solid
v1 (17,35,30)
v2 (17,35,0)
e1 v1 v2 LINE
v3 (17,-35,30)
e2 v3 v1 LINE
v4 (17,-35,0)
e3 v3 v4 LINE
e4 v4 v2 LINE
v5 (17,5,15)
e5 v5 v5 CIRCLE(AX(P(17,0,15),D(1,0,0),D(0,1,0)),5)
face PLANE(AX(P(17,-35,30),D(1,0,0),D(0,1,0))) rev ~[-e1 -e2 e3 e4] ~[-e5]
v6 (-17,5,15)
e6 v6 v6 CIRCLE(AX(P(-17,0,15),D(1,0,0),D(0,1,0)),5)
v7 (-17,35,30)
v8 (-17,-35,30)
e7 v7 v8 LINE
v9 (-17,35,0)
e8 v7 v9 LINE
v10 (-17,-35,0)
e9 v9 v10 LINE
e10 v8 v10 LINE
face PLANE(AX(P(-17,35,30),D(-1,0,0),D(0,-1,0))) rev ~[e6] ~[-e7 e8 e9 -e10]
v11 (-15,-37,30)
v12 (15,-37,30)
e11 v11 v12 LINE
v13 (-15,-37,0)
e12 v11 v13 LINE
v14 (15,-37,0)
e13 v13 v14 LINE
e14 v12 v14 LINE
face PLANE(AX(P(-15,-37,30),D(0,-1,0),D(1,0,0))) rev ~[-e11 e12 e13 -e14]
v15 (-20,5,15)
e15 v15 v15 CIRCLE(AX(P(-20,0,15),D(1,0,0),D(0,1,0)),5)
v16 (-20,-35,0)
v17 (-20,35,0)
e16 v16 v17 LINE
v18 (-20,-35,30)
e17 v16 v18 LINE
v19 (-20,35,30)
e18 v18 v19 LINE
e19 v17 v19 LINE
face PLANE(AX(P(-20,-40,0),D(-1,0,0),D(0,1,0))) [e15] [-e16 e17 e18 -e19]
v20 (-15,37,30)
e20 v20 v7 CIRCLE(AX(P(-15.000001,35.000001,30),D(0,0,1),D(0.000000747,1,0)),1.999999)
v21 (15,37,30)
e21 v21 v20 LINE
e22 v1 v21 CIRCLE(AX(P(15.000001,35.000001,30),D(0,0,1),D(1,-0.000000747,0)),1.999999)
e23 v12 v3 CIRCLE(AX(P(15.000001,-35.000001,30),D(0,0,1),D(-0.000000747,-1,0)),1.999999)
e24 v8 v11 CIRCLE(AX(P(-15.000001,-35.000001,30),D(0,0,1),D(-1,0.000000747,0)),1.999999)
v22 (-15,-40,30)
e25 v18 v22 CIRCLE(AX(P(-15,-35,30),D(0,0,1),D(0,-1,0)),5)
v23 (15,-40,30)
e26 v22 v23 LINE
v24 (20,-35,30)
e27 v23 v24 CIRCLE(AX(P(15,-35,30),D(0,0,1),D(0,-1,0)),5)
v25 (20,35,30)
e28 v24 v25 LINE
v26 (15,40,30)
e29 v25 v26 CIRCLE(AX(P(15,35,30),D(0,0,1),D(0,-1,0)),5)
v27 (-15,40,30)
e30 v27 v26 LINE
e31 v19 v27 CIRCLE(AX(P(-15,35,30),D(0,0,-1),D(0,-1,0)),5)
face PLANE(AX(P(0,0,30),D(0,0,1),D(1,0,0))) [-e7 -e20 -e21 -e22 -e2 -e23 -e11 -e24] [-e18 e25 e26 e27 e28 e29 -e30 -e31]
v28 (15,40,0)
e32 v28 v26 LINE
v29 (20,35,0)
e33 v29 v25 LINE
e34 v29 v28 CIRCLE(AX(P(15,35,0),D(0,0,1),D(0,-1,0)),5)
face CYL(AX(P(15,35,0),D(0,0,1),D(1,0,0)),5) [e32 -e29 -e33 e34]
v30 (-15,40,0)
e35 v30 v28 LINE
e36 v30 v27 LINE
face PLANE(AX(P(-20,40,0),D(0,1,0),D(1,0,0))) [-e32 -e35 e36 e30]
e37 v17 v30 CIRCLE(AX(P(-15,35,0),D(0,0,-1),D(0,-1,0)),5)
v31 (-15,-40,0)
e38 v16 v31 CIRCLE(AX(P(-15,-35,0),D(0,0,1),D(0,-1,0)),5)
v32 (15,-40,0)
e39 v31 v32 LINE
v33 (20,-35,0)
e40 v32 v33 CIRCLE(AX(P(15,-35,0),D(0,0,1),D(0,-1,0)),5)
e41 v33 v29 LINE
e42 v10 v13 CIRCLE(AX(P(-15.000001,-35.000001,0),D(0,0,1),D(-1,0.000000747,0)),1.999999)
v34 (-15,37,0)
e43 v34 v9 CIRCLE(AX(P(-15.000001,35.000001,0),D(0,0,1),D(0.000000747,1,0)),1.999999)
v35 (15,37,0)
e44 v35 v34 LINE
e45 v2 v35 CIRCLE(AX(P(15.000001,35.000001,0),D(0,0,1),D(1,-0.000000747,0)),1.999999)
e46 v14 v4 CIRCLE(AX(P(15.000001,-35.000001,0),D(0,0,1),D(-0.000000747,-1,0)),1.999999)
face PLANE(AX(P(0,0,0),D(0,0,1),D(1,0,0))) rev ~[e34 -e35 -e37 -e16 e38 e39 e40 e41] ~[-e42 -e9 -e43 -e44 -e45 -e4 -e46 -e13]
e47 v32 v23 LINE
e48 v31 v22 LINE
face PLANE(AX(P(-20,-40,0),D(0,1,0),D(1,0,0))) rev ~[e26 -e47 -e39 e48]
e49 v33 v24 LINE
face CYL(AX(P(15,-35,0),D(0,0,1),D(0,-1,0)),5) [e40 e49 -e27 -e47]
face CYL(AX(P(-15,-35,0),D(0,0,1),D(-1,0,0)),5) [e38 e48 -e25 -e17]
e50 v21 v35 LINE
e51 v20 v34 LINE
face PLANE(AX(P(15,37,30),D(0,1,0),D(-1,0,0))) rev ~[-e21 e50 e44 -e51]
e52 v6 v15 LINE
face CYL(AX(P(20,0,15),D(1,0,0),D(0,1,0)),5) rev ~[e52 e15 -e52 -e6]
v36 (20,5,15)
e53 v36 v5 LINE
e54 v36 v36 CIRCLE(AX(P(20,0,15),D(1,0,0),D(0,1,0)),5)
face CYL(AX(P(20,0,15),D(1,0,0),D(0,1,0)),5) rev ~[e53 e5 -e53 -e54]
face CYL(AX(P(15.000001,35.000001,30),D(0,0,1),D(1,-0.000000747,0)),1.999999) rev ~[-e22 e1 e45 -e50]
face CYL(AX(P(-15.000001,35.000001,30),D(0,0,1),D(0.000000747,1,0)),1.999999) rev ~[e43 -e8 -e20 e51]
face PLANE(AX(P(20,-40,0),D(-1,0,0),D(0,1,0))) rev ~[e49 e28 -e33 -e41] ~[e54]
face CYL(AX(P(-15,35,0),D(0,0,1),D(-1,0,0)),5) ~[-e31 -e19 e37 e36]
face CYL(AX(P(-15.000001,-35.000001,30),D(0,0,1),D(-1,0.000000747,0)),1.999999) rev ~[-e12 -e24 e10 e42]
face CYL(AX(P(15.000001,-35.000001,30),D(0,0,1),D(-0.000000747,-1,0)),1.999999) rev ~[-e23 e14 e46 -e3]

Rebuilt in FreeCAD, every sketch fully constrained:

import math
import FreeCAD as App
import Part
import Sketcher
Q = App.Units.Quantity


def edges_at(feature, points):
    """Names of the edges that pass closest to the given points."""
    edges = feature.Shape.Edges
    near = lambda p: min(range(len(edges)), key=lambda i: edges[i].distToShape(Part.Vertex(*p))[0])
    return sorted({f"Edge{near(p) + 1}" for p in points})

doc = App.newDocument("Part")
body = doc.addObject("PartDesign::Body", "Body")

# Sketch on XY plane
sketch1 = body.newObject("Sketcher::SketchObject", "Sketch")
sketch1.AttachmentSupport = (doc.getObject("XY_Plane"), [""])
sketch1.MapMode = "FlatFace"
sketch1.addGeometry(Part.LineSegment(App.Vector(-20, 40, 0), App.Vector(-20, -40, 0)), False)
sketch1.addGeometry(Part.LineSegment(App.Vector(-20, -40, 0), App.Vector(20, -40, 0)), False)
sketch1.addGeometry(Part.LineSegment(App.Vector(20, -40, 0), App.Vector(20, 40, 0)), False)
sketch1.addGeometry(Part.LineSegment(App.Vector(20, 40, 0), App.Vector(-20, 40, 0)), False)
sketch1.addConstraint(Sketcher.Constraint("Coincident", 0, 2, 1, 1))
sketch1.addConstraint(Sketcher.Constraint("Coincident", 1, 2, 2, 1))
sketch1.addConstraint(Sketcher.Constraint("Coincident", 2, 2, 3, 1))
sketch1.addConstraint(Sketcher.Constraint("Coincident", 3, 2, 0, 1))
sketch1.addConstraint(Sketcher.Constraint("Vertical", 0))
sketch1.addConstraint(Sketcher.Constraint("Horizontal", 1))
sketch1.addConstraint(Sketcher.Constraint("Vertical", 2))
sketch1.addConstraint(Sketcher.Constraint("Horizontal", 3))
sketch1.addConstraint(Sketcher.Constraint("Symmetric", 0, 2, 2, 2, -1, 1))
sketch1.addConstraint(Sketcher.Constraint("DistanceX", 1, 1, 1, 2, Q("40 mm")))
sketch1.addConstraint(Sketcher.Constraint("DistanceY", 0, 2, 0, 1, Q("80 mm")))
pad1 = body.newObject("PartDesign::Pad", "Pad")
pad1.Profile = sketch1
pad1.Length = 30
doc.recompute()

fillet = body.newObject("PartDesign::Fillet", "Fillet")
fillet.Base = (pad1, edges_at(pad1, [
    (20, 40, 15),
    (-20, 40, 15),
    (-20, -40, 15),
    (20, -40, 15),
]))
fillet.Radius = 5

# Sketch on XY plane
sketch2 = body.newObject("Sketcher::SketchObject", "Sketch001")
sketch2.AttachmentSupport = (doc.getObject("XY_Plane"), [""])
sketch2.MapMode = "FlatFace"
sketch2.AttachmentOffset = App.Placement(App.Vector(0, 0, 30), App.Rotation())
sketch2.addGeometry(Part.ArcOfCircle(Part.Circle(App.Vector(15, 35, 0), App.Vector(0, 0, 1), 2), math.radians(0), math.radians(90)), False)
sketch2.addGeometry(Part.LineSegment(App.Vector(15, 37, 0), App.Vector(-15, 37, 0)), False)
sketch2.addGeometry(Part.ArcOfCircle(Part.Circle(App.Vector(-15, 35, 0), App.Vector(0, 0, 1), 2), math.radians(90), math.radians(180)), False)
sketch2.addGeometry(Part.LineSegment(App.Vector(-17, 35, 0), App.Vector(-17, -35, 0)), False)
sketch2.addGeometry(Part.ArcOfCircle(Part.Circle(App.Vector(-15, -35, 0), App.Vector(0, 0, 1), 2), math.radians(180), math.radians(270)), False)
sketch2.addGeometry(Part.LineSegment(App.Vector(-15, -37, 0), App.Vector(15, -37, 0)), False)
sketch2.addGeometry(Part.ArcOfCircle(Part.Circle(App.Vector(15, -35, 0), App.Vector(0, 0, 1), 2), math.radians(-90), math.radians(0)), False)
sketch2.addGeometry(Part.LineSegment(App.Vector(17, -35, 0), App.Vector(17, 35, 0)), False)
sketch2.addConstraint(Sketcher.Constraint("Tangent", 0, 2, 1, 1))
sketch2.addConstraint(Sketcher.Constraint("Tangent", 1, 2, 2, 1))
sketch2.addConstraint(Sketcher.Constraint("Tangent", 2, 2, 3, 1))
sketch2.addConstraint(Sketcher.Constraint("Tangent", 3, 2, 4, 1))
sketch2.addConstraint(Sketcher.Constraint("Tangent", 4, 2, 5, 1))
sketch2.addConstraint(Sketcher.Constraint("Tangent", 5, 2, 6, 1))
sketch2.addConstraint(Sketcher.Constraint("Tangent", 6, 2, 7, 1))
sketch2.addConstraint(Sketcher.Constraint("Tangent", 7, 2, 0, 1))
sketch2.addConstraint(Sketcher.Constraint("Horizontal", 1))
sketch2.addConstraint(Sketcher.Constraint("Vertical", 3))
sketch2.addConstraint(Sketcher.Constraint("Horizontal", 5))
sketch2.addConstraint(Sketcher.Constraint("Vertical", 7))
sketch2.addConstraint(Sketcher.Constraint("Equal", 0, 2))
sketch2.addConstraint(Sketcher.Constraint("Equal", 2, 4))
sketch2.addConstraint(Sketcher.Constraint("Equal", 4, 6))
sketch2.addConstraint(Sketcher.Constraint("Symmetric", 0, 3, 4, 3, -1, 1))
sketch2.addConstraint(Sketcher.Constraint("Radius", 0, Q("1.999999 mm")))
sketch2.addConstraint(Sketcher.Constraint("DistanceX", 1, 2, 1, 1, Q("30 mm")))
sketch2.addConstraint(Sketcher.Constraint("DistanceY", 3, 2, 3, 1, Q("70 mm")))
pocket1 = body.newObject("PartDesign::Pocket", "Pocket")
pocket1.Profile = sketch2
pocket1.Length = 30

# Sketch on YZ plane
sketch3 = body.newObject("Sketcher::SketchObject", "Sketch002")
sketch3.AttachmentSupport = (doc.getObject("YZ_Plane"), [""])
sketch3.MapMode = "FlatFace"
sketch3.AttachmentOffset = App.Placement(App.Vector(0, 0, 20), App.Rotation())
sketch3.addGeometry(Part.Circle(App.Vector(0, 15, 0), App.Vector(0, 0, 1), 5), False)
sketch3.addConstraint(Sketcher.Constraint("PointOnObject", 0, 3, -2))
sketch3.addConstraint(Sketcher.Constraint("Diameter", 0, Q("10 mm")))
sketch3.addConstraint(Sketcher.Constraint("DistanceY", -1, 1, 0, 3, Q("15 mm")))
pocket2 = body.newObject("PartDesign::Pocket", "Pocket001")
pocket2.Profile = sketch3
pocket2.Type = "ThroughAll"

doc.recompute()
